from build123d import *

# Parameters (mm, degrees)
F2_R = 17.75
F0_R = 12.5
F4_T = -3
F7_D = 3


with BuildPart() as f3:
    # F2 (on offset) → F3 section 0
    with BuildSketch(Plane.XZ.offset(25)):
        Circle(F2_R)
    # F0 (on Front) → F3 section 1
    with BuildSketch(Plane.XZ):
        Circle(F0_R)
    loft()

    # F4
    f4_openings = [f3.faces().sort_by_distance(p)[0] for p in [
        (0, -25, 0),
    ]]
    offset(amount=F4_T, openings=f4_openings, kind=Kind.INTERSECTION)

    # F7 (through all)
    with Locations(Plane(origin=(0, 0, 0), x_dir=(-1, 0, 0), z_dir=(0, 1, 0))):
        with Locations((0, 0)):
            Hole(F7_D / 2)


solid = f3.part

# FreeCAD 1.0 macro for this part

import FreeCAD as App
import Part
import Sketcher

V = App.Vector


def faces_at(feature, points):
    """Names of the faces that lie closest to the given points."""
    faces = feature.Shape.Faces
    near = lambda p: min(range(len(faces)), key=lambda i: faces[i].distToShape(Part.Vertex(*p))[0])
    return sorted({f"Face{near(p) + 1}" for p in points})

doc = App.newDocument("Part")
body = doc.addObject("PartDesign::Body", "Body")

sketch1 = body.newObject("Sketcher::SketchObject", "Sketch")
sketch1.AttachmentSupport = (doc.getObject("XZ_Plane"), [""])
sketch1.MapMode = "FlatFace"
sketch1.AttachmentOffset = App.Placement(V(0, 0, 25), App.Rotation())
sketch1.addGeometry(Part.Circle(V(0, 0, 0), V(0, 0, 1), 18), False)
sketch1.addConstraint(Sketcher.Constraint("Coincident", 0, 3, -1, 1))
sketch1.addConstraint(Sketcher.Constraint("Diameter", 0, 35.5))

sketch2 = body.newObject("Sketcher::SketchObject", "Sketch001")
sketch2.AttachmentSupport = (doc.getObject("XZ_Plane"), [""])
sketch2.MapMode = "FlatFace"
sketch2.addGeometry(Part.Circle(V(0, 0, 0), V(0, 0, 1), 12), False)
sketch2.addConstraint(Sketcher.Constraint("Coincident", 0, 3, -1, 1))
sketch2.addConstraint(Sketcher.Constraint("Diameter", 0, 25.0))

additiveloft = body.newObject("PartDesign::AdditiveLoft", "AdditiveLoft")
additiveloft.Profile = sketch1
additiveloft.Sections = [sketch2]
doc.recompute()

thickness = body.newObject("PartDesign::Thickness", "Thickness")
thickness.Base = (additiveloft, faces_at(additiveloft, [(0, -25, 0)]))
thickness.Value = 3
thickness.Reversed = True
thickness.Join = "Intersection"

sketch3 = body.newObject("Sketcher::SketchObject", "Sketch002")
sketch3.AttachmentSupport = (doc.getObject("XZ_Plane"), [""])
sketch3.MapMode = "FlatFace"
sketch3.addGeometry(Part.Circle(V(0, 0, 0), V(0, 0, 1), 1.5), False)
sketch3.addConstraint(Sketcher.Constraint("Coincident", 0, 3, -1, 1))
sketch3.addConstraint(Sketcher.Constraint("Diameter", 0, 3.0))
doc.recompute()
hole = body.newObject("PartDesign::Hole", "Hole")
hole.Profile = sketch3
hole.ThreadType = "None"
hole.Diameter = 3
hole.DepthType = "ThroughAll"
hole.Reversed = True

doc.recompute()
